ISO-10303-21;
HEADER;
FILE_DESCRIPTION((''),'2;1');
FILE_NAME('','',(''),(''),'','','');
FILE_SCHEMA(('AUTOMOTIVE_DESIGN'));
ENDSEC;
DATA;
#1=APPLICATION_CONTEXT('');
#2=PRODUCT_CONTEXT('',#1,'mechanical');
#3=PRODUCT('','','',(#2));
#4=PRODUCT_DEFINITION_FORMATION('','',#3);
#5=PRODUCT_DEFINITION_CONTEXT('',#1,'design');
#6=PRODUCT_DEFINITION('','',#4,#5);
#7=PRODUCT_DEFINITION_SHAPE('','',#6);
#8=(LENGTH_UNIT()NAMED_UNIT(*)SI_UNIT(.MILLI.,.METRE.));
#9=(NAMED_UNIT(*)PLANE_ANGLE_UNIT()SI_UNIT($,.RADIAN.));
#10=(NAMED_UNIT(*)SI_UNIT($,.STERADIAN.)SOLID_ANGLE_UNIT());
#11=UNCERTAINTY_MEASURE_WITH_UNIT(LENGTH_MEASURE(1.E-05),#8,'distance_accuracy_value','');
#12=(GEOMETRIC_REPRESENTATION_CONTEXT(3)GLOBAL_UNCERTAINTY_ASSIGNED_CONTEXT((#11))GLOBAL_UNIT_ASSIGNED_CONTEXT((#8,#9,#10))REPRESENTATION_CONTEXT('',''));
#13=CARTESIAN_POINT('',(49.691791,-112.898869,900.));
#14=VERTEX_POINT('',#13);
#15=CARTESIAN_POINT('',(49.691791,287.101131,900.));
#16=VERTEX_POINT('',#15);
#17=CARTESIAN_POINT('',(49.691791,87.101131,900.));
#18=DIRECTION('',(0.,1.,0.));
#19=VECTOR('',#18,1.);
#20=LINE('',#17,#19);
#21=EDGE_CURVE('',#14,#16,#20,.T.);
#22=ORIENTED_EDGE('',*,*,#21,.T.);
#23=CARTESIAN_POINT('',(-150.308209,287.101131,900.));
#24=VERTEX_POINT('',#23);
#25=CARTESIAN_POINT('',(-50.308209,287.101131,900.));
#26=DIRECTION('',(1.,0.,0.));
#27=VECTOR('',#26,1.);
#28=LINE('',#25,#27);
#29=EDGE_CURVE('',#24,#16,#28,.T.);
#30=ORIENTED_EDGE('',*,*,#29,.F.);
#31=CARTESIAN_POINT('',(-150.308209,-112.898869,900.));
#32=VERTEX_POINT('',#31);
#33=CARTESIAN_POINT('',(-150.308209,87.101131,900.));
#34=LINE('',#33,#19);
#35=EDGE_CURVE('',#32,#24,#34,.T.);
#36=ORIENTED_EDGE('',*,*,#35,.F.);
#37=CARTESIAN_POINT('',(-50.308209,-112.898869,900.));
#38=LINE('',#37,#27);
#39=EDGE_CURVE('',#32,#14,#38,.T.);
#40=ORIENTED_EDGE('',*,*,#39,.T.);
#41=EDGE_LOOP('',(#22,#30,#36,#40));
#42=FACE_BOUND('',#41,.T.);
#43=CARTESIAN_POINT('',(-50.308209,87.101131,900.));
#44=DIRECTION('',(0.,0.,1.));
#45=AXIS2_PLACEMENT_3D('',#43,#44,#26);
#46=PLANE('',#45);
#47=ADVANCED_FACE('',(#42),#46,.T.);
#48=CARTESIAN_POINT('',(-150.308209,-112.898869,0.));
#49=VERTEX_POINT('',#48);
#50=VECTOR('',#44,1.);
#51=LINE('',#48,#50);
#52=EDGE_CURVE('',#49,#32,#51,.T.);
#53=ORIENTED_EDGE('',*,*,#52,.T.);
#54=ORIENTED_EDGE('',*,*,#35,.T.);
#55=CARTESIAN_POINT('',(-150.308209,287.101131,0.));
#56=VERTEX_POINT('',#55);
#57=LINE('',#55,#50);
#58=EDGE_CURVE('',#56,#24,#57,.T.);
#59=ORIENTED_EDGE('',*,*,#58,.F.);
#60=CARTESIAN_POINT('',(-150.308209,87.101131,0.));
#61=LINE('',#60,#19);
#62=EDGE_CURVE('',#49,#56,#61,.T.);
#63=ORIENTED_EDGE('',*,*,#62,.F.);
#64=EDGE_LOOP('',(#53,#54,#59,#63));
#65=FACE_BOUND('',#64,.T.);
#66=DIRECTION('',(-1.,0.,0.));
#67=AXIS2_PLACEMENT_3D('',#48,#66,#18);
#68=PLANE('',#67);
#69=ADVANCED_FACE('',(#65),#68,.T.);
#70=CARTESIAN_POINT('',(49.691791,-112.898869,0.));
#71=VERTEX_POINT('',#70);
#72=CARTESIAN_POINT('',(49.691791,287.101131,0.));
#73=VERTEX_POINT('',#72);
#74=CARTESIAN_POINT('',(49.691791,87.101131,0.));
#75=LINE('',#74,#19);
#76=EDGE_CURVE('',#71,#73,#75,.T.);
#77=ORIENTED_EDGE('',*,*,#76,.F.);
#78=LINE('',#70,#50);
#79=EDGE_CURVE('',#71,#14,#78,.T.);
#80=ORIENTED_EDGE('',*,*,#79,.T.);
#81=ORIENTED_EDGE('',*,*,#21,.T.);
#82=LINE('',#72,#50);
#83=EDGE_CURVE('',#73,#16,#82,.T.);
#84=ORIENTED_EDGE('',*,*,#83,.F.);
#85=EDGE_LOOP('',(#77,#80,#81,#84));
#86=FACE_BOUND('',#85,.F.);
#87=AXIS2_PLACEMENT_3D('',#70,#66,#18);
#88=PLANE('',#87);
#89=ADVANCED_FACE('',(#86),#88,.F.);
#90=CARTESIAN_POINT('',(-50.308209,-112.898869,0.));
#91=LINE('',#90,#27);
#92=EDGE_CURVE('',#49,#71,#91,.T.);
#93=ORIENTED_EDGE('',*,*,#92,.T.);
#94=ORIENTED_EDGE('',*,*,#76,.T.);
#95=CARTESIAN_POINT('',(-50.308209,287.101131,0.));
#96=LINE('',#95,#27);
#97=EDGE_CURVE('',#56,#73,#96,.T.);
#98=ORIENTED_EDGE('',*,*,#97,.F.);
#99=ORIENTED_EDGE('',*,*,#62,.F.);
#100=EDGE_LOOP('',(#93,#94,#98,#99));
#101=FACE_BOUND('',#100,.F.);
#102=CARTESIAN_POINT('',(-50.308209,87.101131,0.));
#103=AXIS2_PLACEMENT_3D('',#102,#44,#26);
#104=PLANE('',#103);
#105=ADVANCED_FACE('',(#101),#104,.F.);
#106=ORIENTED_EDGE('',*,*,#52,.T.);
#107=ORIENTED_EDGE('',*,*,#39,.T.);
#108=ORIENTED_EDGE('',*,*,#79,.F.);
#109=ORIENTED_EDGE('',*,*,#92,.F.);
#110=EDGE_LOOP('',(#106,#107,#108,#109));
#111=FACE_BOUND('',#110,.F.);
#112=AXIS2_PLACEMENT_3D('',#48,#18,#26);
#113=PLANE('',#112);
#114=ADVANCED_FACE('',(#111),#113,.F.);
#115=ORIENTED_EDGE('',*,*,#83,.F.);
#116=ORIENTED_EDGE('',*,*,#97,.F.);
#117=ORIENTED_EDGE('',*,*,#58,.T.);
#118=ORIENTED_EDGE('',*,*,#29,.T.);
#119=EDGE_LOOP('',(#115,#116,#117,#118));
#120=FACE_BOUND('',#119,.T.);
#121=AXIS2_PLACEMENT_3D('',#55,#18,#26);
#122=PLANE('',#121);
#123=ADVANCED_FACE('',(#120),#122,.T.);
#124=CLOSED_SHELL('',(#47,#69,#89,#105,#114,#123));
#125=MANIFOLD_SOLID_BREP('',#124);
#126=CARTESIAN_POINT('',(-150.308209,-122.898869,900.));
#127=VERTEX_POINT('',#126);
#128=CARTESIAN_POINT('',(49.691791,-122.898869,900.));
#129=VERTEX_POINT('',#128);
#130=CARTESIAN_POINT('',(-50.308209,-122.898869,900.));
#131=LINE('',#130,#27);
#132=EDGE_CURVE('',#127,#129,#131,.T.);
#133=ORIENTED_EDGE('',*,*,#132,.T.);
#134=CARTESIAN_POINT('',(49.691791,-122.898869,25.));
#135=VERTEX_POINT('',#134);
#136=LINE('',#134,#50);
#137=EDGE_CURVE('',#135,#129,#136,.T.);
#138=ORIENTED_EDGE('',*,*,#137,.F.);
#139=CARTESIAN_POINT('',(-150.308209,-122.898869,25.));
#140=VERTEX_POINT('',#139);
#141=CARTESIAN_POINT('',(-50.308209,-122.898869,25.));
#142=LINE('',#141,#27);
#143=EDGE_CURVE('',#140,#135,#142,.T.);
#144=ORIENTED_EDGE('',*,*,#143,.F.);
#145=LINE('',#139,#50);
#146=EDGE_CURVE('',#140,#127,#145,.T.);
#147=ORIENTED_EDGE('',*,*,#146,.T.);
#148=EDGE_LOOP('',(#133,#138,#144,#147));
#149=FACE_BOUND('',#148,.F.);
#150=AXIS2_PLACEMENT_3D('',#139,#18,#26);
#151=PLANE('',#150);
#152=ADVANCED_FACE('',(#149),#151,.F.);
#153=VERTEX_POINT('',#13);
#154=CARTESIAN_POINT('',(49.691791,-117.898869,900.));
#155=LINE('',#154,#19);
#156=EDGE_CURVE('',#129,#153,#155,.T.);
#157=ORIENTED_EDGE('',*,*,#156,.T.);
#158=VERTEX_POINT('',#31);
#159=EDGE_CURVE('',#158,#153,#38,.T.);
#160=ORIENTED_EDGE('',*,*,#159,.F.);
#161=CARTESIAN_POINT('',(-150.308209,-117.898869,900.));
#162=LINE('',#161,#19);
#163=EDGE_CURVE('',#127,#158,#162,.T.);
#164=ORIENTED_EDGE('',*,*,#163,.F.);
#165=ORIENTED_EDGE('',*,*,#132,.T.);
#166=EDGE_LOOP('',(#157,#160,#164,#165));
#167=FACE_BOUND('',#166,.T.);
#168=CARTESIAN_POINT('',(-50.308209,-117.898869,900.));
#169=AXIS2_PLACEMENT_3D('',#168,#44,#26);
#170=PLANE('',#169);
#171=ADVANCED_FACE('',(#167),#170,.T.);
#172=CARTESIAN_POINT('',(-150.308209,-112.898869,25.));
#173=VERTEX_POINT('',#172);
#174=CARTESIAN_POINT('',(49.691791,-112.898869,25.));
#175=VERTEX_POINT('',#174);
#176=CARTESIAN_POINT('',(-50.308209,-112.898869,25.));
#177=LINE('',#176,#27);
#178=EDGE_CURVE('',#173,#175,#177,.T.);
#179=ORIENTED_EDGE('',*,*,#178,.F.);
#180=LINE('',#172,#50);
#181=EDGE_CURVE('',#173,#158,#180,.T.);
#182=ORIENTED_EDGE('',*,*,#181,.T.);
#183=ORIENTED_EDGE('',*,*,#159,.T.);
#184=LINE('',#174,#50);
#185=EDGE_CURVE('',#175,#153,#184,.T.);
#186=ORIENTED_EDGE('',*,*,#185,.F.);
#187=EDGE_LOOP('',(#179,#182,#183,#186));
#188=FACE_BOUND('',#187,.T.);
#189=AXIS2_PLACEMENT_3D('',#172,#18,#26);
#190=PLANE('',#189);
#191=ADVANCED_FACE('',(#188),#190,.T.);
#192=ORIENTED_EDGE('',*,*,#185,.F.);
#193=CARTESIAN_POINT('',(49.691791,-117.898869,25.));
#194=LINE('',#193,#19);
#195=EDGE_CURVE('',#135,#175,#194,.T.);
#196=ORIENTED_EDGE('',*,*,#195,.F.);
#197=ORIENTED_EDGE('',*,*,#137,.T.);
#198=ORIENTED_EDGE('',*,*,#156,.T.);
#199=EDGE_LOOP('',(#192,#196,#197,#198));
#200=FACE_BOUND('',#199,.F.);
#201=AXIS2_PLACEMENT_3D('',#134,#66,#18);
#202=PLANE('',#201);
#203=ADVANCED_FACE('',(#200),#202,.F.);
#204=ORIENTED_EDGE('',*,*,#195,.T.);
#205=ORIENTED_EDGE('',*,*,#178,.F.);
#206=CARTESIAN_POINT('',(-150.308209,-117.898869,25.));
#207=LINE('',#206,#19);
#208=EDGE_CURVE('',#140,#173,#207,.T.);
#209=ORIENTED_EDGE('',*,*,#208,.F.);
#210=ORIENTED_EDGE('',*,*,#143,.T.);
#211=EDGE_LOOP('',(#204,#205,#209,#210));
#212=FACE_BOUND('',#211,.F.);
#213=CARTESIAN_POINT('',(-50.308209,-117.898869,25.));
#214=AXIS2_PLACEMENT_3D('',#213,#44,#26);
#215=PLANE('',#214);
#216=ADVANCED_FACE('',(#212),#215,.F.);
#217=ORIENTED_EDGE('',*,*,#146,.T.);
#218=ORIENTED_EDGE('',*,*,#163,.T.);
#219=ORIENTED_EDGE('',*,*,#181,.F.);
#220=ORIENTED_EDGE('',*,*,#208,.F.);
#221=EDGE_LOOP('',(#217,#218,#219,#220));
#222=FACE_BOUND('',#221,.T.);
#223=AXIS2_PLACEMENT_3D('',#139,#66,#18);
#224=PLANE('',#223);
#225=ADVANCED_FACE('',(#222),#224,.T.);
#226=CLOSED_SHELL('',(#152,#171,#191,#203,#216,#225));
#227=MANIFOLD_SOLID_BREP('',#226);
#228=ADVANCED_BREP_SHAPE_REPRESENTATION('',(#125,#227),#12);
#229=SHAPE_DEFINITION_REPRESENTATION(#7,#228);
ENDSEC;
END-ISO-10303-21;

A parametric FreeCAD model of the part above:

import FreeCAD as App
import Part
import Sketcher
from FreeCAD import Vector
Q = App.Units.Quantity

doc = App.newDocument("Part")
body = doc.addObject("PartDesign::Body", "Body")

sketch1 = doc.addObject("Sketcher::SketchObject", "Sketch")
body.addObject(sketch1)
sketch1.AttachmentSupport = (doc.XY_Plane, [""])
sketch1.MapMode = "FlatFace"
sketch1.addGeometry([
    Part.LineSegment(Vector(-150, 287, 0), Vector(-150, -113, 0)),
    Part.LineSegment(Vector(-150, -113, 0), Vector(50, -113, 0)),
    Part.LineSegment(Vector(50, -113, 0), Vector(50, 287, 0)),
    Part.LineSegment(Vector(50, 287, 0), Vector(-150, 287, 0)),
], False)
sketch1.addConstraint([
    Sketcher.Constraint("Coincident", 0, 2, 1, 1),
    Sketcher.Constraint("Coincident", 1, 2, 2, 1),
    Sketcher.Constraint("Coincident", 2, 2, 3, 1),
    Sketcher.Constraint("Coincident", 3, 2, 0, 1),
    Sketcher.Constraint("Vertical", 0),
    Sketcher.Constraint("Horizontal", 1),
    Sketcher.Constraint("Vertical", 2),
    Sketcher.Constraint("Horizontal", 3),
    Sketcher.Constraint("DistanceX", 1, 1, 1, 2, Q("200 mm")),
    Sketcher.Constraint("DistanceY", 0, 2, 0, 1, Q("400 mm")),
    Sketcher.Constraint("DistanceX", 0, 2, -1, 1, Q("150.308209 mm")),
    Sketcher.Constraint("DistanceY", 0, 2, -1, 1, Q("112.898869 mm")),
])
pad1 = doc.addObject("PartDesign::Pad", "Pad")
body.addObject(pad1)
pad1.Profile = sketch1
pad1.Length = 900
body2 = doc.addObject("PartDesign::Body", "Body001")

sketch2 = doc.addObject("Sketcher::SketchObject", "Sketch001")
body2.addObject(sketch2)
sketch2.AttachmentSupport = (doc.getObject("XY_Plane001"), [""])
sketch2.MapMode = "FlatFace"
sketch2.AttachmentOffset = App.Placement(Vector(0, 0, 25), App.Rotation())
sketch2.addGeometry([
    Part.LineSegment(Vector(-150, -113, 0), Vector(-150, -123, 0)),
    Part.LineSegment(Vector(-150, -123, 0), Vector(50, -123, 0)),
    Part.LineSegment(Vector(50, -123, 0), Vector(50, -113, 0)),
    Part.LineSegment(Vector(50, -113, 0), Vector(-150, -113, 0)),
], False)
sketch2.addConstraint([
    Sketcher.Constraint("Coincident", 0, 2, 1, 1),
    Sketcher.Constraint("Coincident", 1, 2, 2, 1),
    Sketcher.Constraint("Coincident", 2, 2, 3, 1),
    Sketcher.Constraint("Coincident", 3, 2, 0, 1),
    Sketcher.Constraint("Vertical", 0),
    Sketcher.Constraint("Horizontal", 1),
    Sketcher.Constraint("Vertical", 2),
    Sketcher.Constraint("Horizontal", 3),
    Sketcher.Constraint("DistanceX", 1, 1, 1, 2, Q("200 mm")),
    Sketcher.Constraint("DistanceY", 0, 2, 0, 1, Q("10 mm")),
    Sketcher.Constraint("DistanceX", 0, 2, -1, 1, Q("150.308209 mm")),
    Sketcher.Constraint("DistanceY", 0, 2, -1, 1, Q("122.898869 mm")),
])
pad2 = doc.addObject("PartDesign::Pad", "Pad001")
body2.addObject(pad2)
pad2.Profile = sketch2
pad2.Length = 875

doc.recompute()
